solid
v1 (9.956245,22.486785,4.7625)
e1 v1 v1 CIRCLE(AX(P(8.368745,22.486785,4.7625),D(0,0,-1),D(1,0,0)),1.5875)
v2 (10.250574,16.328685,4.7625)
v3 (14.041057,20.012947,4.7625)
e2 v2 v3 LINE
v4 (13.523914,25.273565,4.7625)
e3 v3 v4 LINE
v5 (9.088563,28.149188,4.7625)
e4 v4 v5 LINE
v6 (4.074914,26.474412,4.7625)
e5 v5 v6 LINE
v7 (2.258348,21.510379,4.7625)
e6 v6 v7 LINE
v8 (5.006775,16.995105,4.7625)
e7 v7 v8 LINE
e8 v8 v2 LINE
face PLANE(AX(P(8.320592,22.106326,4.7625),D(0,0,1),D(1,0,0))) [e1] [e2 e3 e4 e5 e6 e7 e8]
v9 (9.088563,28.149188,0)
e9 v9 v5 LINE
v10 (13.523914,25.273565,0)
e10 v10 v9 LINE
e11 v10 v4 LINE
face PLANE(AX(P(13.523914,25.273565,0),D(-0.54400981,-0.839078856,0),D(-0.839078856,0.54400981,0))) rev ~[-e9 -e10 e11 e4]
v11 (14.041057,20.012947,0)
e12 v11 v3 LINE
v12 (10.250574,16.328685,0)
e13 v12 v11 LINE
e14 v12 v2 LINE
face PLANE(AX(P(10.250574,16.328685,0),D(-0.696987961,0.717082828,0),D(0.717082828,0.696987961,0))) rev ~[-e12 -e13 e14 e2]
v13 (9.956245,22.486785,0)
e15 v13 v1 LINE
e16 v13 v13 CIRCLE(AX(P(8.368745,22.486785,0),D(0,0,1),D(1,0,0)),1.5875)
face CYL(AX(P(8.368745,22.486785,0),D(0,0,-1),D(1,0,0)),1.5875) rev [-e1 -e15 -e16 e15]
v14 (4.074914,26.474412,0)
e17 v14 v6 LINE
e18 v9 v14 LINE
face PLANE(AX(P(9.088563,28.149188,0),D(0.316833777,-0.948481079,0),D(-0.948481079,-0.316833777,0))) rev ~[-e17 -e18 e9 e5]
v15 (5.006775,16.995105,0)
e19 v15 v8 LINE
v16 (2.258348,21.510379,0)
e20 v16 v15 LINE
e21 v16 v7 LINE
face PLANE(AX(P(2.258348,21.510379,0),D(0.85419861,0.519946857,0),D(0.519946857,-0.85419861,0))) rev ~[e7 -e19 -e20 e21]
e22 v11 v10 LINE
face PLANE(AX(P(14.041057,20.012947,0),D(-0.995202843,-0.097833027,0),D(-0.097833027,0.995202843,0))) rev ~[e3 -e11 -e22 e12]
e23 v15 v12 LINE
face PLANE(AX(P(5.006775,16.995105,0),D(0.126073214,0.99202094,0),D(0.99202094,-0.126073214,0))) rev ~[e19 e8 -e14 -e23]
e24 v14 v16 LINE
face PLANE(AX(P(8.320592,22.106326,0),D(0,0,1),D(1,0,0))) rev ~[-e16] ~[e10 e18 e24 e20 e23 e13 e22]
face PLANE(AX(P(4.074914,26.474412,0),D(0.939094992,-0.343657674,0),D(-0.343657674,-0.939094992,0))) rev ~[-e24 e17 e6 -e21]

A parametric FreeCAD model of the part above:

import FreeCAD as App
import Part
import Sketcher
from FreeCAD import Vector
Q = App.Units.Quantity

doc = App.newDocument("Part")
params = doc.addObject("Spreadsheet::Sheet", "Params")
for row, (alias, value) in enumerate([
    ("pad1_length", "0.1875 in"),
    ("sketch2_diameter", "0.125 in"),
    ("pocket1_length", "1.57 in"),
], start=1):
    params.set(f"A{row}", alias)
    params.set(f"B{row}", "=" + value)
    params.setAlias(f"B{row}", alias)

body = doc.addObject("PartDesign::Body", "Body")

sketch1 = doc.addObject("Sketcher::SketchObject", "Sketch")
body.addObject(sketch1)
sketch1.AttachmentSupport = (doc.XY_Plane, [""])
sketch1.MapMode = "FlatFace"
sketch1.addGeometry([
    Part.LineSegment(Vector(2, 22, 0), Vector(5, 17, 0)),
    Part.LineSegment(Vector(5, 17, 0), Vector(10, 16, 0)),
    Part.LineSegment(Vector(10, 16, 0), Vector(14, 20, 0)),
    Part.LineSegment(Vector(14, 20, 0), Vector(14, 25, 0)),
    Part.LineSegment(Vector(14, 25, 0), Vector(9, 28, 0)),
    Part.LineSegment(Vector(9, 28, 0), Vector(4, 26, 0)),
    Part.LineSegment(Vector(4, 26, 0), Vector(2, 22, 0)),
], False)
sketch1.addConstraint([
    Sketcher.Constraint("Coincident", 0, 2, 1, 1),
    Sketcher.Constraint("Coincident", 1, 2, 2, 1),
    Sketcher.Constraint("Coincident", 2, 2, 3, 1),
    Sketcher.Constraint("Coincident", 3, 2, 4, 1),
    Sketcher.Constraint("Coincident", 4, 2, 5, 1),
    Sketcher.Constraint("Coincident", 5, 2, 6, 1),
    Sketcher.Constraint("Coincident", 6, 2, 0, 1),
    Sketcher.Constraint("Equal", 0, 1),
    Sketcher.Constraint("Equal", 1, 2),
    Sketcher.Constraint("Equal", 2, 3),
    Sketcher.Constraint("Equal", 3, 4),
    Sketcher.Constraint("Equal", 4, 5),
    Sketcher.Constraint("Equal", 5, 6),
    Sketcher.Constraint("DistanceX", 0, 2, 1, 2, 5.243799),
    Sketcher.Constraint("DistanceX", 5, 2, 3, 2, 9.449),
    Sketcher.Constraint("DistanceY", -1, 1, 6, 2, 21.510379),
    Sketcher.Constraint("DistanceY", 1, 2, 0, 2, 0.66642),
    Sketcher.Constraint("DistanceY", 2, 2, 3, 2, 5.260618),
    Sketcher.Constraint("DistanceX", 1, 2, 3, 2, 3.27334),
    Sketcher.Constraint("DistanceX", 4, 2, 3, 2, 4.435351),
    Sketcher.Constraint("DistanceX", -1, 1, 0, 2, 5.006775),
])
pad1 = doc.addObject("PartDesign::Pad", "Pad")
body.addObject(pad1)
pad1.Profile = sketch1
pad1.setExpression("Length", "Params.pad1_length")

sketch2 = doc.addObject("Sketcher::SketchObject", "Sketch001")
body.addObject(sketch2)
sketch2.AttachmentSupport = (doc.XY_Plane, [""])
sketch2.MapMode = "FlatFace"
sketch2.addGeometry(Part.Circle(Vector(8.4, 22.5, 0), Vector(0, 0, 1), 1.6), False)
sketch2.addConstraint([
    Sketcher.Constraint("Diameter", 0, Q("0.125 in")),
    Sketcher.Constraint("DistanceX", -1, 1, 0, 3, 8.368745),
    Sketcher.Constraint("DistanceY", -1, 1, 0, 3, 22.486785),
])
sketch2.setExpression("Constraints[0]", "Params.sketch2_diameter")
pocket1 = doc.addObject("PartDesign::Pocket", "Pocket")
body.addObject(pocket1)
pocket1.Profile = sketch2
pocket1.setExpression("Length", "Params.pocket1_length")
pocket1.Reversed = True

doc.recompute()
